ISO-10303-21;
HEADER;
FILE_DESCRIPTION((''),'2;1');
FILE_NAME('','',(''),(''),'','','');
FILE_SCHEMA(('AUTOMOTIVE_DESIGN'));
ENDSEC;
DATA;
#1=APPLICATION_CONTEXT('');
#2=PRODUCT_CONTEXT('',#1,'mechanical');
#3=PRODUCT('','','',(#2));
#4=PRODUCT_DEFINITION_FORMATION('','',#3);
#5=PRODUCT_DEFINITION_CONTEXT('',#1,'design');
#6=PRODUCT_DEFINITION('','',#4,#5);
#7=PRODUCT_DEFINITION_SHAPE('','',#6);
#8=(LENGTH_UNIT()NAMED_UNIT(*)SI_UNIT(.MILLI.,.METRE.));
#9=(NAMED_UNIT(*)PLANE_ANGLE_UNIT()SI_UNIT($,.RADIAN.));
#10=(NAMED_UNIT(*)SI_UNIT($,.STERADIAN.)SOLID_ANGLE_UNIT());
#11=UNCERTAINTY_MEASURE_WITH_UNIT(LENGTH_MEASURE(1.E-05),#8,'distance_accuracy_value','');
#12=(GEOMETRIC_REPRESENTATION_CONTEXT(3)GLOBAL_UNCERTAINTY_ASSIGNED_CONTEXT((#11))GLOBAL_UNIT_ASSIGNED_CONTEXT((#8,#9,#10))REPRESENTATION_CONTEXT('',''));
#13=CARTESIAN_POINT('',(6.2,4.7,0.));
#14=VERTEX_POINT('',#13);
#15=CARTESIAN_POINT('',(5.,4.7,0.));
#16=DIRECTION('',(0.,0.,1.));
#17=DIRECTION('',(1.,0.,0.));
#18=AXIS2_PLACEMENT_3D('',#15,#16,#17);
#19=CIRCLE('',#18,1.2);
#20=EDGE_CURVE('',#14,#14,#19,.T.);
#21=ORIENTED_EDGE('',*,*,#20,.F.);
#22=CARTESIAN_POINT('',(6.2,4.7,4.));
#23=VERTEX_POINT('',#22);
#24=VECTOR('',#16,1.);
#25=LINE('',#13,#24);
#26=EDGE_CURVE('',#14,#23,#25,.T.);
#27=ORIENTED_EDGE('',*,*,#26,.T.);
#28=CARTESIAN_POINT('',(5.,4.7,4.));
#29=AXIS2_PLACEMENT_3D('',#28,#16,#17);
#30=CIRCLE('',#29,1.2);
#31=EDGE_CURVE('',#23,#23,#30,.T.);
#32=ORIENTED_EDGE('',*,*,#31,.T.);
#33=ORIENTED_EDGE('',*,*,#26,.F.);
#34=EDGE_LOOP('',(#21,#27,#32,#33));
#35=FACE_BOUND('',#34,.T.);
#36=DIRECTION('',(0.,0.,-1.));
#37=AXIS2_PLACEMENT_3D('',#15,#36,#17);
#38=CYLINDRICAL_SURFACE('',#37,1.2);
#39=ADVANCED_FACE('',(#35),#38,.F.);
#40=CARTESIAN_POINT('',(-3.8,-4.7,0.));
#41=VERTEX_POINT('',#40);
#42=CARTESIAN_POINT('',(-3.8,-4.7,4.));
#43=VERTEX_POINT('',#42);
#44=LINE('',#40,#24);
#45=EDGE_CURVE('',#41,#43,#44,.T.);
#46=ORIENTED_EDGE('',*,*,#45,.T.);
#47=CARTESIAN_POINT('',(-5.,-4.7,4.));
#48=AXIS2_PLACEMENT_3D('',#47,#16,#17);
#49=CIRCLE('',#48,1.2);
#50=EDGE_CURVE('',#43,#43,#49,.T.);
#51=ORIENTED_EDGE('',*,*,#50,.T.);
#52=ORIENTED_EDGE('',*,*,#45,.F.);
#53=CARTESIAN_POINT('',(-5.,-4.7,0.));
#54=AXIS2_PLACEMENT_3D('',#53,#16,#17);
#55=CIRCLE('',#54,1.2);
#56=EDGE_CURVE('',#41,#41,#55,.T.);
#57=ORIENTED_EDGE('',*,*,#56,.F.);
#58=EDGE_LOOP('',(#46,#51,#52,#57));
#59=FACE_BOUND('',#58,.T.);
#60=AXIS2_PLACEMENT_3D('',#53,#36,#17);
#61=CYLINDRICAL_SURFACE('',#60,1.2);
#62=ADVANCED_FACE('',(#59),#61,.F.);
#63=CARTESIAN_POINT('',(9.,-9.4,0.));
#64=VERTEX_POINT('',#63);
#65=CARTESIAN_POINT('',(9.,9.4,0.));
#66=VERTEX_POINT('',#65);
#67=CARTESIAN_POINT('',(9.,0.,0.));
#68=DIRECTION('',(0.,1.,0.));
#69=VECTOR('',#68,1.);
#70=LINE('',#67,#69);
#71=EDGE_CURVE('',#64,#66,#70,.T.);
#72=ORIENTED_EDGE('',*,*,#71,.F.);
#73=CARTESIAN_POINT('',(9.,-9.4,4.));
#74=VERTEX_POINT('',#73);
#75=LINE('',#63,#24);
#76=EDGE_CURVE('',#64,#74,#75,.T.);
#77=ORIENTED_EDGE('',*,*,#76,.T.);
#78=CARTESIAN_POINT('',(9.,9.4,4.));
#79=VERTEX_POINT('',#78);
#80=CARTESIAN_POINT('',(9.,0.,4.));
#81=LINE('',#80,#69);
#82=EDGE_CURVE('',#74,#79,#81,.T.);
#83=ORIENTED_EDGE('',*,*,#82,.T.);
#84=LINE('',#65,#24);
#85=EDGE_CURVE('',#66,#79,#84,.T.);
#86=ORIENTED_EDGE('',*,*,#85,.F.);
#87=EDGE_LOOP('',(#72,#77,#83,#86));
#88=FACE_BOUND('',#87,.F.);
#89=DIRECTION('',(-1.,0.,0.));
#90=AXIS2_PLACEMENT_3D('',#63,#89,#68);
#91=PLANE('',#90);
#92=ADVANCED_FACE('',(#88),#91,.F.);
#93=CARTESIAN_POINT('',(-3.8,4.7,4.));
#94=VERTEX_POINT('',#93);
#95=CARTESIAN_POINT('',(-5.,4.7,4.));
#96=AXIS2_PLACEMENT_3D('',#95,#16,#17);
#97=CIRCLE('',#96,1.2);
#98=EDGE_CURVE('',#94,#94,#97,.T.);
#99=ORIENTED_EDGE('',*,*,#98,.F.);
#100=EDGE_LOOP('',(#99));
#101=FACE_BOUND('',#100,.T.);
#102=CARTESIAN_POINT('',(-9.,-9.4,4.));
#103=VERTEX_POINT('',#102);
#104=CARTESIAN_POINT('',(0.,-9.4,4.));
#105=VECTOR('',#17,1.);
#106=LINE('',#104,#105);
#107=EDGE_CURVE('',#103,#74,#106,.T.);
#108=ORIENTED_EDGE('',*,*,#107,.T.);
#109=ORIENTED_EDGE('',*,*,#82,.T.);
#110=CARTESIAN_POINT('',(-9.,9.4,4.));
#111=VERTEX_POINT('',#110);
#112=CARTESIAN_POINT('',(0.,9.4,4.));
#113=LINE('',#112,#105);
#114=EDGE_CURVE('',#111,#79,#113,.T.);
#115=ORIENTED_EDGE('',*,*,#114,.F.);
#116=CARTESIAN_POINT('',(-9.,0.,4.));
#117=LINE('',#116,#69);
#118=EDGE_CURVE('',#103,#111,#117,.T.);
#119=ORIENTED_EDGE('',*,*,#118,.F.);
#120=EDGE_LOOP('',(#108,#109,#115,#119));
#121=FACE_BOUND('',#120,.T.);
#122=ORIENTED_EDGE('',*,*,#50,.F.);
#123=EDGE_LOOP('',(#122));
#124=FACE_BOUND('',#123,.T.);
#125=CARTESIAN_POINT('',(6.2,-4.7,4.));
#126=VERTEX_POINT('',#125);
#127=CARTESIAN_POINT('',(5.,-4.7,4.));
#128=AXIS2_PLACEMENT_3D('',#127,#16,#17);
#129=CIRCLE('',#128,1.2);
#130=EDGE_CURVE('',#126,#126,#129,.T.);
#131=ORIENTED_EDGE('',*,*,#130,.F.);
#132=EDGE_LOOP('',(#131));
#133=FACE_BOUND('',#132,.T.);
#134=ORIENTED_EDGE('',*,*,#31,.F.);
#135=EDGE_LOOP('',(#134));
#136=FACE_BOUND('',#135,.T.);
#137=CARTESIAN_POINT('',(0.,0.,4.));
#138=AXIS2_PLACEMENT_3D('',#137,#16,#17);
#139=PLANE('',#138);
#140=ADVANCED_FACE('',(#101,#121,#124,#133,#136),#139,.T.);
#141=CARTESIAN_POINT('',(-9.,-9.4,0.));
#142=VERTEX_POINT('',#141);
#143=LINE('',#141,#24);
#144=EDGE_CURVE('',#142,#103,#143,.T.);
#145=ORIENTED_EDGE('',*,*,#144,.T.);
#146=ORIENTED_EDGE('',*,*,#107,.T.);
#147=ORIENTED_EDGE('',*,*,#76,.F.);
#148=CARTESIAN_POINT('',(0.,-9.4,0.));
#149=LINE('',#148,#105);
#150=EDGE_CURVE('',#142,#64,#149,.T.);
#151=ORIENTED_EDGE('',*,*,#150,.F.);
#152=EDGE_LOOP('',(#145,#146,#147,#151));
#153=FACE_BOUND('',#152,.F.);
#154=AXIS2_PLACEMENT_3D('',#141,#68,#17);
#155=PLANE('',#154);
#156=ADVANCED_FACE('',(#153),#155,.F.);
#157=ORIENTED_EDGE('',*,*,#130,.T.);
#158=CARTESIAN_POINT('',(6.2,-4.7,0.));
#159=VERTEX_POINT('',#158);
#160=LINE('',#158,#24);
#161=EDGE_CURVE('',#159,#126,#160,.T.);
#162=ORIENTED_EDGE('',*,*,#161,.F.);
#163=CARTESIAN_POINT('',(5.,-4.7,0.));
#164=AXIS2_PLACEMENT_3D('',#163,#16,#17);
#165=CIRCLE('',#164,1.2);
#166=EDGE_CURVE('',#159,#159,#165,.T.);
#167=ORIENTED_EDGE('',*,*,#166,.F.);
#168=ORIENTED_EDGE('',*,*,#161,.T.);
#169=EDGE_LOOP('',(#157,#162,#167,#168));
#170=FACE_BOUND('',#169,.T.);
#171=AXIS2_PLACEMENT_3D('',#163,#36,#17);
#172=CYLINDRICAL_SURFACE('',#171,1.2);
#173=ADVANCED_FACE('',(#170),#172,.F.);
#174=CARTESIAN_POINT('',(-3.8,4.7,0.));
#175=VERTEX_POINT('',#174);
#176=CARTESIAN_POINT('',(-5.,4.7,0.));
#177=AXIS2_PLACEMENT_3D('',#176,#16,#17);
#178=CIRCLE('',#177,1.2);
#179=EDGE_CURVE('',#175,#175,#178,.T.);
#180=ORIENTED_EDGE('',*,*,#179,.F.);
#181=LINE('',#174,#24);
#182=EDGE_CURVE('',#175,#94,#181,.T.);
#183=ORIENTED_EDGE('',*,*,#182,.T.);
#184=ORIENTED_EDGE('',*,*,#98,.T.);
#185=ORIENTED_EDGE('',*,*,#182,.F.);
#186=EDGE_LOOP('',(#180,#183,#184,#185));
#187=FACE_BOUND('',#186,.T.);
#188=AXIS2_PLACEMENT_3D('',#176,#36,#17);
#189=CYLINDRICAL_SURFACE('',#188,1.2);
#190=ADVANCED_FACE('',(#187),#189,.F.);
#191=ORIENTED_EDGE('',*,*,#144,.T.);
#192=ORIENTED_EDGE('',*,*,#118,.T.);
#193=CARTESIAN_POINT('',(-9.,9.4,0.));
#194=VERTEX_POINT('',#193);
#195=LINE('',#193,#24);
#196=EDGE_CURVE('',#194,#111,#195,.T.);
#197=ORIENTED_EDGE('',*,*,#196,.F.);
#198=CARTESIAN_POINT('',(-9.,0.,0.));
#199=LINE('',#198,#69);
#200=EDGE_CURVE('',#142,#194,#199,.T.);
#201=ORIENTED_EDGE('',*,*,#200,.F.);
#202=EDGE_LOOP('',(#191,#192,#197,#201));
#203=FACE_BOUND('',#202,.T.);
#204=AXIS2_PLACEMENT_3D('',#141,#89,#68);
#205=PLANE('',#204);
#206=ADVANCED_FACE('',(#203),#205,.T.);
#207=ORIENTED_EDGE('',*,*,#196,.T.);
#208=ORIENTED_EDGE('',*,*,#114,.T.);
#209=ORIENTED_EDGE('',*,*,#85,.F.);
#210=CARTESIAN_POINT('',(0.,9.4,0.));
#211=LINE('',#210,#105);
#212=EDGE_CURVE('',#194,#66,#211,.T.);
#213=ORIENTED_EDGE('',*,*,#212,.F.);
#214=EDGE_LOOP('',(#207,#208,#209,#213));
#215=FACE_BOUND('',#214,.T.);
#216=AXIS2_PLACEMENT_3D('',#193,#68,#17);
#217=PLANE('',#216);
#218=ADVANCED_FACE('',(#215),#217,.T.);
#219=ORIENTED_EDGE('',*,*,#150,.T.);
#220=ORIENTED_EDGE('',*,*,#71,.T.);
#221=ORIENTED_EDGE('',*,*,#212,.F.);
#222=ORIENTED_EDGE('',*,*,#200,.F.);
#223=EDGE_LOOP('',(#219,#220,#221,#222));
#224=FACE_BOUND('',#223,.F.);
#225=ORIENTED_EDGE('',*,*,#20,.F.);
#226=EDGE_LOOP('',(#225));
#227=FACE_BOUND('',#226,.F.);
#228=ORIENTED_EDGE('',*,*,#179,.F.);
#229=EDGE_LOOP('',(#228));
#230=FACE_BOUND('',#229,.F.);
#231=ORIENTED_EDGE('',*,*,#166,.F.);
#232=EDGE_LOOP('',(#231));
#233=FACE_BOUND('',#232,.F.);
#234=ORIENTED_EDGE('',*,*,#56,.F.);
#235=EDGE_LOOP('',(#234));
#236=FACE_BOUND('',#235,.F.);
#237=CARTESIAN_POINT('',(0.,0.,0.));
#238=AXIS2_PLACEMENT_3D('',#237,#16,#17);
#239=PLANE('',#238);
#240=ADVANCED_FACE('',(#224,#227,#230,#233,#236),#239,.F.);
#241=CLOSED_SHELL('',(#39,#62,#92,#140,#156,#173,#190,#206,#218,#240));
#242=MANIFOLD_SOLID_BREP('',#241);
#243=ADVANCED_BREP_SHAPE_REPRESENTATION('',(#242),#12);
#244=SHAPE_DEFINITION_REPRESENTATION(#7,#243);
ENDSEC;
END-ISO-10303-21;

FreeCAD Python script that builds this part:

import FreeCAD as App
import Part
import Sketcher

V = App.Vector


def add_polygon(sketch, points):
    """Adds a closed chain of lines whose ends are joined by coincident constraints."""
    first, n = sketch.GeometryCount, len(points)
    for a, b in zip(points, points[1:] + points[:1]):
        sketch.addGeometry(Part.LineSegment(App.Vector(*a, 0), App.Vector(*b, 0)), False)
    for i in range(n):
        sketch.addConstraint(Sketcher.Constraint("Coincident", first + i, 2, first + (i + 1) % n, 1))

doc = App.newDocument("Part")
body = doc.addObject("PartDesign::Body", "Body")

# Sketch on XY plane
sketch1 = doc.addObject("Sketcher::SketchObject", "Sketch")
body.addObject(sketch1)
sketch1.AttachmentSupport = (doc.XY_Plane, [""])
sketch1.MapMode = "FlatFace"
add_polygon(sketch1, [(-9, 9.4), (-9, -9.4), (9, -9.4), (9, 9.4)])  # lines 0-3
sketch1.addGeometry(Part.Circle(V(-5, -4.7, 0), V(0, 0, 1), 1.2), False)  # 4
sketch1.addGeometry(Part.Circle(V(5, -4.7, 0), V(0, 0, 1), 1.2), False)  # 5
sketch1.addGeometry(Part.Circle(V(-5, 4.7, 0), V(0, 0, 1), 1.2), False)  # 6
sketch1.addGeometry(Part.Circle(V(5, 4.7, 0), V(0, 0, 1), 1.2), False)  # 7
sketch1.addConstraint(Sketcher.Constraint("Vertical", 0))
sketch1.addConstraint(Sketcher.Constraint("Horizontal", 1))
sketch1.addConstraint(Sketcher.Constraint("Vertical", 2))
sketch1.addConstraint(Sketcher.Constraint("Horizontal", 3))
sketch1.addConstraint(Sketcher.Constraint("Equal", 4, 5))
sketch1.addConstraint(Sketcher.Constraint("Equal", 5, 6))
sketch1.addConstraint(Sketcher.Constraint("Equal", 6, 7))
sketch1.addConstraint(Sketcher.Constraint("Symmetric", 5, 3, 6, 3, -1, 1))
sketch1.addConstraint(Sketcher.Constraint("Symmetric", 4, 3, 7, 3, -1, 1))
sketch1.addConstraint(Sketcher.Constraint("Symmetric", 0, 2, 2, 2, -1, 1))
sketch1.addConstraint(Sketcher.Constraint("Symmetric", 4, 3, 5, 3, -2))
sketch1.addConstraint(Sketcher.Constraint("Diameter", 4, 2.4))
sketch1.addConstraint(Sketcher.Constraint("DistanceX", 1, 1, 1, 2, 18.0))
sketch1.addConstraint(Sketcher.Constraint("DistanceY", 0, 2, 0, 1, 18.8))
sketch1.addConstraint(Sketcher.Constraint("DistanceX", 4, 3, -1, 1, 5.0))
sketch1.addConstraint(Sketcher.Constraint("DistanceY", 4, 3, -1, 1, 4.7))
pad1 = doc.addObject("PartDesign::Pad", "Pad")
body.addObject(pad1)
pad1.Profile = sketch1
pad1.Length = 4

doc.recompute()
